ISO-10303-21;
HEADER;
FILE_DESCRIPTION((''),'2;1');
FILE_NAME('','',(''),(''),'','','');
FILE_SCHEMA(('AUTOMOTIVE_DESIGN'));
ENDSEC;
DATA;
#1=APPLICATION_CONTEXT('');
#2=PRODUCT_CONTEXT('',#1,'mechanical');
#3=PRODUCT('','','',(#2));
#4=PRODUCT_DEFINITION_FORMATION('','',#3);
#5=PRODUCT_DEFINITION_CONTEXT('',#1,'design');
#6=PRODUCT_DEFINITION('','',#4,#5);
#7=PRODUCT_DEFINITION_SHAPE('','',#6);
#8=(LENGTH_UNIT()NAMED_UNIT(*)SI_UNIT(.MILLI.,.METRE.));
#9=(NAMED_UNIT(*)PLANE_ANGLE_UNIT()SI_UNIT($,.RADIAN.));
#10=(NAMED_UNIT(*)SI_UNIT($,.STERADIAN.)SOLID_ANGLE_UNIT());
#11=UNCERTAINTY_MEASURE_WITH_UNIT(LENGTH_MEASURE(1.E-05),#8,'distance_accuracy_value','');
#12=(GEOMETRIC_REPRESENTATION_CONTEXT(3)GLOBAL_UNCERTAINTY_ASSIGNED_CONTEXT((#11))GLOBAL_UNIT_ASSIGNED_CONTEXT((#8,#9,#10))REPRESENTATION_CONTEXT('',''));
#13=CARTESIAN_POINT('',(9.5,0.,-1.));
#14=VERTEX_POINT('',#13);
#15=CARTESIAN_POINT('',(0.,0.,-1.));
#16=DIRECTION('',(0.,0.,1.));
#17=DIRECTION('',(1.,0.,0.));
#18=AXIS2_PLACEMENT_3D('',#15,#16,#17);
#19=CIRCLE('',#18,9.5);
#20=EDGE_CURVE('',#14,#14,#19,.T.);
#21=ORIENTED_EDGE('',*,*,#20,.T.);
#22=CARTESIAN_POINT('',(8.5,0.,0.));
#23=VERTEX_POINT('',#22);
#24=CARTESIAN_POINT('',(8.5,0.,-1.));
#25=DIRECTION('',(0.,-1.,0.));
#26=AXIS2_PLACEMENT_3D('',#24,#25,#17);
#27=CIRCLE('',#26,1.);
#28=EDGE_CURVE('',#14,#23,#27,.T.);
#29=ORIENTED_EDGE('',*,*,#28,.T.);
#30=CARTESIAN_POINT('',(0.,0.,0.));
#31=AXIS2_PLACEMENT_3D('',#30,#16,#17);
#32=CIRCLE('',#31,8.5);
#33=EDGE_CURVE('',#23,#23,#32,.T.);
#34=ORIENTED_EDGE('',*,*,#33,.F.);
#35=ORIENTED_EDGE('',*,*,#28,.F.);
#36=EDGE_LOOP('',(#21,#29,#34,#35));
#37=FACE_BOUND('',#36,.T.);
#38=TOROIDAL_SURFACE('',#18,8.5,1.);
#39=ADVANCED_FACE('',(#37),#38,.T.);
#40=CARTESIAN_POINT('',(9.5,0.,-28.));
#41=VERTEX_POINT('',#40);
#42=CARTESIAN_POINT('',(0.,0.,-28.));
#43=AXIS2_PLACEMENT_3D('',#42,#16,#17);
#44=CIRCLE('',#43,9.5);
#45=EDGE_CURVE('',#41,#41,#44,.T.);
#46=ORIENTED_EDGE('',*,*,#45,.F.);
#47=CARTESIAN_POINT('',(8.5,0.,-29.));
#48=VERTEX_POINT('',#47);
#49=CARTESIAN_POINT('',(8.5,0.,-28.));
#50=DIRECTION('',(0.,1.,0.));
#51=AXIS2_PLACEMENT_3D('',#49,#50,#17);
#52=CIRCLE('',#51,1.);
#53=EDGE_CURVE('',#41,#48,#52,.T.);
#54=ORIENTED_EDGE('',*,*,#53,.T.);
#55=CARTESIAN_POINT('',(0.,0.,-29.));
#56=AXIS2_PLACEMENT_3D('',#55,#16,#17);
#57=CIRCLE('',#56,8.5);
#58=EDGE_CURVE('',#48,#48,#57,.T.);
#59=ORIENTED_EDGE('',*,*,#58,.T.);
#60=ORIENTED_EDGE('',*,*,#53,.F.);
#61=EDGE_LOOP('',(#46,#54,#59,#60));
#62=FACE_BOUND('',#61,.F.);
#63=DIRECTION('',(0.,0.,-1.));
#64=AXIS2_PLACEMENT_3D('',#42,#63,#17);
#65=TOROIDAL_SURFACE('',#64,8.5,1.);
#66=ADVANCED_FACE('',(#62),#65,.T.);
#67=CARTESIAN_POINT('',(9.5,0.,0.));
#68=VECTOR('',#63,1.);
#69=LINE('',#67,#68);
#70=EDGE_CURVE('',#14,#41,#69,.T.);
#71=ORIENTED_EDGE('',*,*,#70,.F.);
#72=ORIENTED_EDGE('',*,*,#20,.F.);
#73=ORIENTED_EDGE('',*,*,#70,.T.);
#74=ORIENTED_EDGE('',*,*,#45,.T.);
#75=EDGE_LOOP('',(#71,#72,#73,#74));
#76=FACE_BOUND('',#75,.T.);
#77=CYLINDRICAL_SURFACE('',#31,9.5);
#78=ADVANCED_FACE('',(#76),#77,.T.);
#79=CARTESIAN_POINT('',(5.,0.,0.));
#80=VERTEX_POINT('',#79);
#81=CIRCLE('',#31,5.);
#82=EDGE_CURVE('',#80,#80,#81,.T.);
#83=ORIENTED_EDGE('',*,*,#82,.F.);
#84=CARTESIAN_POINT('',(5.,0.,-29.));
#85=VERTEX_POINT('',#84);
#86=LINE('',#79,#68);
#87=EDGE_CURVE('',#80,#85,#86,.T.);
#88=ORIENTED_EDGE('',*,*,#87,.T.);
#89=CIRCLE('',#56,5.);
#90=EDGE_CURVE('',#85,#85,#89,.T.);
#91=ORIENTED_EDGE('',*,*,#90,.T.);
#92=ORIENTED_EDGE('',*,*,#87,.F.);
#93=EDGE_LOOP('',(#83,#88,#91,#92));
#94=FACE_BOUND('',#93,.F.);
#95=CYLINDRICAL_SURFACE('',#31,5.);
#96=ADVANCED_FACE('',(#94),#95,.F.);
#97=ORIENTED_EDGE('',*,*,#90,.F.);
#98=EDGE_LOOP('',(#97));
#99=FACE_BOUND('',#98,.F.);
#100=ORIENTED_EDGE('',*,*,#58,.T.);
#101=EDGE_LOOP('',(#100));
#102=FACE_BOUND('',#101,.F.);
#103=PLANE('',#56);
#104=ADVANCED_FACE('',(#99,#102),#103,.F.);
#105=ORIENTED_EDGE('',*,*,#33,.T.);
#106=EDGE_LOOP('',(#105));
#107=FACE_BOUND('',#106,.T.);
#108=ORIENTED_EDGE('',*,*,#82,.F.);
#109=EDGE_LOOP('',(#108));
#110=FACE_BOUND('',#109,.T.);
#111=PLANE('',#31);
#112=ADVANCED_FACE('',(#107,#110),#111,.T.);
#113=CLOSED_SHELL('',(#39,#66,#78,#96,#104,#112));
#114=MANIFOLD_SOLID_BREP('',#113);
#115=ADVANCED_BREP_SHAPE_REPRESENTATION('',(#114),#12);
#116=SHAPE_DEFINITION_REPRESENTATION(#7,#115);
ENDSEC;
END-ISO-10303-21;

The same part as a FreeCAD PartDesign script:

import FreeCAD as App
import Part
import Sketcher
from FreeCAD import Vector
Q = App.Units.Quantity


def edges_at(feature, points):
    """Names of the edges that pass closest to the given points."""
    edges = feature.Shape.Edges
    near = lambda p: min(range(len(edges)), key=lambda i: edges[i].distToShape(Part.Vertex(*p))[0])
    return sorted({f"Edge{near(p) + 1}" for p in points})

doc = App.newDocument("Part")
body = doc.addObject("PartDesign::Body", "Body")

# Sketch on XY plane
sketch1 = body.newObject("Sketcher::SketchObject", "Sketch")
sketch1.AttachmentSupport = (doc.getObject("XY_Plane"), [""])
sketch1.MapMode = "FlatFace"
sketch1.addGeometry([
    Part.Circle(Vector(0, 0, 0), Vector(0, 0, 1), 10),
    Part.Circle(Vector(0, 0, 0), Vector(0, 0, 1), 5),
], False)
sketch1.addConstraint([
    Sketcher.Constraint("Coincident", 0, 3, -1, 1),
    Sketcher.Constraint("Coincident", 1, 3, -1, 1),
    Sketcher.Constraint("Diameter", 0, Q("19 mm")),
    Sketcher.Constraint("Diameter", 1, Q("10 mm")),
])
pad1 = body.newObject("PartDesign::Pad", "Pad")
pad1.Profile = sketch1
pad1.Length = 29
pad1.Reversed = True
doc.recompute()

fillet = body.newObject("PartDesign::Fillet", "Fillet")
fillet.Base = (pad1, edges_at(pad1, [(-9.5, 0, 0), (-9.5, 0, -29)]))
fillet.Radius = 1

doc.recompute()
